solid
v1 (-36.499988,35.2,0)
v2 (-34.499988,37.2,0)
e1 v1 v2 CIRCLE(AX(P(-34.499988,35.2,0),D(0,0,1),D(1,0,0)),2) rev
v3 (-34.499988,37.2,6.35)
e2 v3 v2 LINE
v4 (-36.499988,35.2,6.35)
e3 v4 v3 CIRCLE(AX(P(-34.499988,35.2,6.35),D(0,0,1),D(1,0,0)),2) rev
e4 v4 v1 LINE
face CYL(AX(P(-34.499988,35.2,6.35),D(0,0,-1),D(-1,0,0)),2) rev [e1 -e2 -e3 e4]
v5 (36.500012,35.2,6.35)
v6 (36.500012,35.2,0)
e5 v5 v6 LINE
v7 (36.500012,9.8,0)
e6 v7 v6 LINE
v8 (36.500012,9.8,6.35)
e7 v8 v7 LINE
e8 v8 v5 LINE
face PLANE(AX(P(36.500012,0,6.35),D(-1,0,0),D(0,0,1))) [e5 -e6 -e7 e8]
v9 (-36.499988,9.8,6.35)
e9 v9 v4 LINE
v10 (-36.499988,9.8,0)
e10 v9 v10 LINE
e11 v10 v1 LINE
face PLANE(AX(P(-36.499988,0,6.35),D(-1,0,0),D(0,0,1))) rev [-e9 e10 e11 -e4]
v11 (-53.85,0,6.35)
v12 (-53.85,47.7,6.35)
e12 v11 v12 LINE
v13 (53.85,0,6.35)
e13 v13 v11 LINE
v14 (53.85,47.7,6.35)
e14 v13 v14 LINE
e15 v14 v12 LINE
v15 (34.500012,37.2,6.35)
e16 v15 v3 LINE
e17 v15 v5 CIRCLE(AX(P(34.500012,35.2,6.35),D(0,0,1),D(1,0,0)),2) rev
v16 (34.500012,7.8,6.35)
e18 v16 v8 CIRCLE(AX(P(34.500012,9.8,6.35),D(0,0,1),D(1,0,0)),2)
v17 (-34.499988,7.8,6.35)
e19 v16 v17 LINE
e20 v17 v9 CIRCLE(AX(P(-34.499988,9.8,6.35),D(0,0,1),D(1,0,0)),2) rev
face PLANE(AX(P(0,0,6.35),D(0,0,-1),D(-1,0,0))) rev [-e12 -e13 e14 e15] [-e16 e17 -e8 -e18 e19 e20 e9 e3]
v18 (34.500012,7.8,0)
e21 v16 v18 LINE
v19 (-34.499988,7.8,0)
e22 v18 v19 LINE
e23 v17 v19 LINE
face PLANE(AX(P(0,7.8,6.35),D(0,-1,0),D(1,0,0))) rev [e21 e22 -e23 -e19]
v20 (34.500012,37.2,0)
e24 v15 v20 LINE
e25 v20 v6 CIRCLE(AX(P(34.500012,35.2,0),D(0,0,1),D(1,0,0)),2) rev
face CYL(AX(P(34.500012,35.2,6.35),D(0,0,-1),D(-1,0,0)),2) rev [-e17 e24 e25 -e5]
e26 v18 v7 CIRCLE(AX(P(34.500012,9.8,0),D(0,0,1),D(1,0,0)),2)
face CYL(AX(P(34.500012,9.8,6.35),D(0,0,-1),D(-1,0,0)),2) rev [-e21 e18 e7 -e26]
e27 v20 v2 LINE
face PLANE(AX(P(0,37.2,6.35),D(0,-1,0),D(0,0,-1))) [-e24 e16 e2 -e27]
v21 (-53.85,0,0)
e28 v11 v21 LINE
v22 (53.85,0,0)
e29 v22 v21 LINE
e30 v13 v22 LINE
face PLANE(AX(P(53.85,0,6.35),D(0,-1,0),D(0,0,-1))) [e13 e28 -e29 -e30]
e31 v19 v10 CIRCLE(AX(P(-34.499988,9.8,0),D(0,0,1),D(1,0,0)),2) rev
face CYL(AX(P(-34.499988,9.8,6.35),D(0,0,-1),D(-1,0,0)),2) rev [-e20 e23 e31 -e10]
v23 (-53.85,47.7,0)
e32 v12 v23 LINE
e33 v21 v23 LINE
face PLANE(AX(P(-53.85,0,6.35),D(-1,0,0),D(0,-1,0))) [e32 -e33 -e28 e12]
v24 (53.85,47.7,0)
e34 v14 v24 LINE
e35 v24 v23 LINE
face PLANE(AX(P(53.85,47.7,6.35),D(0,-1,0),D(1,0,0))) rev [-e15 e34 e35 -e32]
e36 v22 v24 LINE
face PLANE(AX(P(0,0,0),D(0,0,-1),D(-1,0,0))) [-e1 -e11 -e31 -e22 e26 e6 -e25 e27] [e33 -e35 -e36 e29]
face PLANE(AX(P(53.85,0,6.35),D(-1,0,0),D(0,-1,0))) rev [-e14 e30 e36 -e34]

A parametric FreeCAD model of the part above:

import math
import FreeCAD as App
import Part
import Sketcher

doc = App.newDocument("Part")
body = doc.addObject("PartDesign::Body", "Body")

sketch1 = body.newObject("Sketcher::SketchObject", "Sketch")
sketch1.AttachmentSupport = (doc.getObject("XY_Plane"), [""])
sketch1.MapMode = "FlatFace"
sketch1.addGeometry([
    Part.LineSegment(App.Vector(-53.9, 47.7, 0), App.Vector(-53.9, 0, 0)),
    Part.LineSegment(App.Vector(-53.9, 0, 0), App.Vector(53.9, 0, 0)),
    Part.LineSegment(App.Vector(53.9, 0, 0), App.Vector(53.9, 47.7, 0)),
    Part.LineSegment(App.Vector(53.9, 47.7, 0), App.Vector(-53.9, 47.7, 0)),
    Part.ArcOfCircle(Part.Circle(App.Vector(34.5, 9.8, 0), App.Vector(0, 0, 1), 2), math.radians(-90), math.radians(0)),
    Part.LineSegment(App.Vector(34.5, 7.8, 0), App.Vector(-34.5, 7.8, 0)),
    Part.ArcOfCircle(Part.Circle(App.Vector(-34.5, 9.8, 0), App.Vector(0, 0, 1), 2), math.radians(-180), math.radians(-90)),
    Part.LineSegment(App.Vector(-36.5, 9.8, 0), App.Vector(-36.5, 35.2, 0)),
    Part.ArcOfCircle(Part.Circle(App.Vector(-34.5, 35.2, 0), App.Vector(0, 0, 1), 2), math.radians(90), math.radians(180)),
    Part.LineSegment(App.Vector(-34.5, 37.2, 0), App.Vector(34.5, 37.2, 0)),
    Part.ArcOfCircle(Part.Circle(App.Vector(34.5, 35.2, 0), App.Vector(0, 0, 1), 2), math.radians(0), math.radians(90)),
    Part.LineSegment(App.Vector(36.5, 35.2, 0), App.Vector(36.5, 9.8, 0)),
], False)
sketch1.addConstraint([
    Sketcher.Constraint("Coincident", 0, 2, 1, 1),
    Sketcher.Constraint("Coincident", 1, 2, 2, 1),
    Sketcher.Constraint("Coincident", 2, 2, 3, 1),
    Sketcher.Constraint("Coincident", 3, 2, 0, 1),
    Sketcher.Constraint("Tangent", 4, 1, 5, 1),
    Sketcher.Constraint("Tangent", 5, 2, 6, 2),
    Sketcher.Constraint("Tangent", 6, 1, 7, 1),
    Sketcher.Constraint("Tangent", 7, 2, 8, 2),
    Sketcher.Constraint("Tangent", 8, 1, 9, 1),
    Sketcher.Constraint("Tangent", 9, 2, 10, 2),
    Sketcher.Constraint("Tangent", 10, 1, 11, 1),
    Sketcher.Constraint("Tangent", 11, 2, 4, 2),
    Sketcher.Constraint("Vertical", 0),
    Sketcher.Constraint("Horizontal", 1),
    Sketcher.Constraint("Vertical", 2),
    Sketcher.Constraint("Horizontal", 3),
    Sketcher.Constraint("Horizontal", 5),
    Sketcher.Constraint("Vertical", 7),
    Sketcher.Constraint("Horizontal", 9),
    Sketcher.Constraint("Vertical", 11),
    Sketcher.Constraint("Equal", 4, 6),
    Sketcher.Constraint("Equal", 6, 8),
    Sketcher.Constraint("Equal", 8, 10),
    Sketcher.Constraint("Symmetric", 0, 2, 1, 2, -1, 1),
    Sketcher.Constraint("Radius", 4, 2.0),
    Sketcher.Constraint("DistanceX", 5, 2, 5, 1, 69.0),
    Sketcher.Constraint("DistanceX", 1, 1, 1, 2, 107.7),
    Sketcher.Constraint("DistanceY", 0, 2, 0, 1, 47.7),
    Sketcher.Constraint("DistanceY", 7, 1, 7, 2, 25.4),
    Sketcher.Constraint("DistanceY", -1, 1, 4, 3, 9.8),
    Sketcher.Constraint("DistanceX", -1, 1, 4, 3, 34.500012),
])
pad1 = body.newObject("PartDesign::Pad", "Pad")
pad1.Profile = sketch1
pad1.Length = 6.35

doc.recompute()
